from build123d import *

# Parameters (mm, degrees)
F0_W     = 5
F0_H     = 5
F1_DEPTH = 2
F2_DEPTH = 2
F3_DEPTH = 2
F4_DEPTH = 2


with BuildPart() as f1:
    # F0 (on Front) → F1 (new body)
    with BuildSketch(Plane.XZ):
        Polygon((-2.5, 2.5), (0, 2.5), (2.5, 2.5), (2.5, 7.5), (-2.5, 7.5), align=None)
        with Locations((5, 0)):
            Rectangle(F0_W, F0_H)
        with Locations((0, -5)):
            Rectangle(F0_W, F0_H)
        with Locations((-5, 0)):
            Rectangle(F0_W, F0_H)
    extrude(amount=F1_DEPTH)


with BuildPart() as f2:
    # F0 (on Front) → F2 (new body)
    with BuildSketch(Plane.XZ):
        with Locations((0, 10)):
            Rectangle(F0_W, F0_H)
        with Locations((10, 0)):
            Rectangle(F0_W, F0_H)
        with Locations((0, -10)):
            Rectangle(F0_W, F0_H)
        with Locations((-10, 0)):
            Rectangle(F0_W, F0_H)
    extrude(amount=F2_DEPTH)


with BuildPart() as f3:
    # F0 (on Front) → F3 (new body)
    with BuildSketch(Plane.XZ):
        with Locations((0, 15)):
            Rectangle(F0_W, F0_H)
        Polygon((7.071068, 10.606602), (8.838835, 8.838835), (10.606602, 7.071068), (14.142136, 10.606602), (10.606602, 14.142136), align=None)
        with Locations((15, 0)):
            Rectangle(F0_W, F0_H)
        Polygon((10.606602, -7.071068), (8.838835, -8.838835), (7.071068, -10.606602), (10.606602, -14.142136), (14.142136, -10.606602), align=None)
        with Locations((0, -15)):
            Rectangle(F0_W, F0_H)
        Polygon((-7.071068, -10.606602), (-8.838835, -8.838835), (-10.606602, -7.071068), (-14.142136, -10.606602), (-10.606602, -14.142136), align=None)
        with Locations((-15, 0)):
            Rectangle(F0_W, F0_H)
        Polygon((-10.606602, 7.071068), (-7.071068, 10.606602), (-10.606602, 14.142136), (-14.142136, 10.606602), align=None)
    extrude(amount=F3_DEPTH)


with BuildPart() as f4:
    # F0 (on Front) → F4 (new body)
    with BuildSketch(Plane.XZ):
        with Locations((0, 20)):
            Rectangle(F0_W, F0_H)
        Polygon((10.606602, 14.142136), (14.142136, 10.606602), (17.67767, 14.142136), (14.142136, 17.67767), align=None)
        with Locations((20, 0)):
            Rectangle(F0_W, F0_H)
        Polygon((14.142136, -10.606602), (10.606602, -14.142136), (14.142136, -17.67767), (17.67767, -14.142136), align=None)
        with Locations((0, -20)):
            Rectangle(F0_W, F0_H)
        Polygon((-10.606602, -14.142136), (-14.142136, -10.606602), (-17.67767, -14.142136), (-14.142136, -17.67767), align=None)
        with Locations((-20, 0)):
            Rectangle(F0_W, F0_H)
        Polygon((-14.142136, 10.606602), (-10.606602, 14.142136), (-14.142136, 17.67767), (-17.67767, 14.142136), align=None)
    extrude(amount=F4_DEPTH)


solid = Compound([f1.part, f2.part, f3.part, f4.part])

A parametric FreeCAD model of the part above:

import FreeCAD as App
import Part
import Sketcher
from FreeCAD import Vector
Q = App.Units.Quantity

doc = App.newDocument("Part")
body = doc.addObject("PartDesign::Body", "Body")
body.AllowCompound = True

# Sketch on XZ plane
sketch1 = body.newObject("Sketcher::SketchObject", "Sketch")
sketch1.AttachmentSupport = (doc.getObject("XZ_Plane"), [""])
sketch1.MapMode = "FlatFace"
sketch1.addGeometry([
    Part.LineSegment(Vector(-2, 2, 0), Vector(2, 2, 0)),  # 0
    Part.LineSegment(Vector(2, 2, 0), Vector(2, 8, 0)),  # 1
    Part.LineSegment(Vector(2, 8, 0), Vector(-2, 8, 0)),  # 2
    Part.LineSegment(Vector(-2, 8, 0), Vector(-2, 2, 0)),  # 3
    Part.LineSegment(Vector(2, 2, 0), Vector(2, -2, 0)),  # 4
    Part.LineSegment(Vector(2, -2, 0), Vector(8, -2, 0)),  # 5
    Part.LineSegment(Vector(8, -2, 0), Vector(8, 2, 0)),  # 6
    Part.LineSegment(Vector(8, 2, 0), Vector(2, 2, 0)),  # 7
    Part.LineSegment(Vector(-2, -2, 0), Vector(-2, -8, 0)),  # 8
    Part.LineSegment(Vector(-2, -8, 0), Vector(2, -8, 0)),  # 9
    Part.LineSegment(Vector(2, -8, 0), Vector(2, -2, 0)),  # 10
    Part.LineSegment(Vector(2, -2, 0), Vector(-2, -2, 0)),  # 11
    Part.LineSegment(Vector(-8, 2, 0), Vector(-8, -2, 0)),  # 12
    Part.LineSegment(Vector(-8, -2, 0), Vector(-2, -2, 0)),  # 13
    Part.LineSegment(Vector(-2, -2, 0), Vector(-2, 2, 0)),  # 14
    Part.LineSegment(Vector(-2, 2, 0), Vector(-8, 2, 0)),  # 15
], False)
sketch1.addConstraint([
    Sketcher.Constraint("Coincident", 0, 2, 1, 1),
    Sketcher.Constraint("Coincident", 1, 2, 2, 1),
    Sketcher.Constraint("Coincident", 2, 2, 3, 1),
    Sketcher.Constraint("Coincident", 3, 2, 0, 1),
    Sketcher.Constraint("Coincident", 4, 2, 5, 1),
    Sketcher.Constraint("Coincident", 5, 2, 6, 1),
    Sketcher.Constraint("Coincident", 6, 2, 7, 1),
    Sketcher.Constraint("Coincident", 7, 2, 4, 1),
    Sketcher.Constraint("Coincident", 8, 2, 9, 1),
    Sketcher.Constraint("Coincident", 9, 2, 10, 1),
    Sketcher.Constraint("Coincident", 10, 2, 11, 1),
    Sketcher.Constraint("Coincident", 11, 2, 8, 1),
    Sketcher.Constraint("Coincident", 12, 2, 13, 1),
    Sketcher.Constraint("Coincident", 13, 2, 14, 1),
    Sketcher.Constraint("Coincident", 14, 2, 15, 1),
    Sketcher.Constraint("Coincident", 15, 2, 12, 1),
    Sketcher.Constraint("Horizontal", 0),
    Sketcher.Constraint("Vertical", 1),
    Sketcher.Constraint("Horizontal", 2),
    Sketcher.Constraint("Vertical", 3),
    Sketcher.Constraint("Vertical", 4),
    Sketcher.Constraint("Horizontal", 5),
    Sketcher.Constraint("Vertical", 6),
    Sketcher.Constraint("Horizontal", 7),
    Sketcher.Constraint("Vertical", 8),
    Sketcher.Constraint("Horizontal", 9),
    Sketcher.Constraint("Vertical", 10),
    Sketcher.Constraint("Horizontal", 11),
    Sketcher.Constraint("Vertical", 12),
    Sketcher.Constraint("Horizontal", 13),
    Sketcher.Constraint("Vertical", 14),
    Sketcher.Constraint("Horizontal", 15),
    Sketcher.Constraint("Coincident", 7, 2, 0, 2),
    Sketcher.Constraint("Coincident", 10, 2, 4, 2),
    Sketcher.Constraint("Coincident", 13, 2, 11, 2),
    Sketcher.Constraint("Coincident", 14, 2, 3, 2),
    Sketcher.Constraint("Symmetric", 3, 2, 4, 2, -1, 1),
    Sketcher.Constraint("Equal", 2, 5),
    Sketcher.Constraint("Equal", 11, 13),
    Sketcher.Constraint("Equal", 15, 1),
    Sketcher.Constraint("Equal", 3, 4),
    Sketcher.Constraint("Equal", 6, 8),
    Sketcher.Constraint("DistanceX", 0, 1, 0, 2, Q("5 mm")),
])
pad1 = body.newObject("PartDesign::Pad", "Pad")
pad1.Profile = sketch1
pad1.Length = 2
body2 = doc.addObject("PartDesign::Body", "Body001")
body2.AllowCompound = True

# Sketch on XZ plane
sketch2 = body2.newObject("Sketcher::SketchObject", "Sketch001")
sketch2.AttachmentSupport = (doc.getObject("XZ_Plane001"), [""])
sketch2.MapMode = "FlatFace"
sketch2.addGeometry([
    Part.LineSegment(Vector(-2, 12, 0), Vector(-2, 8, 0)),  # 0
    Part.LineSegment(Vector(-2, 8, 0), Vector(2, 8, 0)),  # 1
    Part.LineSegment(Vector(2, 8, 0), Vector(2, 12, 0)),  # 2
    Part.LineSegment(Vector(2, 12, 0), Vector(-2, 12, 0)),  # 3
    Part.LineSegment(Vector(8, 2, 0), Vector(8, -2, 0)),  # 4
    Part.LineSegment(Vector(8, -2, 0), Vector(12, -2, 0)),  # 5
    Part.LineSegment(Vector(12, -2, 0), Vector(12, 2, 0)),  # 6
    Part.LineSegment(Vector(12, 2, 0), Vector(8, 2, 0)),  # 7
    Part.LineSegment(Vector(-2, -8, 0), Vector(-2, -12, 0)),  # 8
    Part.LineSegment(Vector(-2, -12, 0), Vector(2, -12, 0)),  # 9
    Part.LineSegment(Vector(2, -12, 0), Vector(2, -8, 0)),  # 10
    Part.LineSegment(Vector(2, -8, 0), Vector(-2, -8, 0)),  # 11
    Part.LineSegment(Vector(-12, 2, 0), Vector(-12, -2, 0)),  # 12
    Part.LineSegment(Vector(-12, -2, 0), Vector(-8, -2, 0)),  # 13
    Part.LineSegment(Vector(-8, -2, 0), Vector(-8, 2, 0)),  # 14
    Part.LineSegment(Vector(-8, 2, 0), Vector(-12, 2, 0)),  # 15
], False)
sketch2.addConstraint([
    Sketcher.Constraint("Coincident", 0, 2, 1, 1),
    Sketcher.Constraint("Coincident", 1, 2, 2, 1),
    Sketcher.Constraint("Coincident", 2, 2, 3, 1),
    Sketcher.Constraint("Coincident", 3, 2, 0, 1),
    Sketcher.Constraint("Coincident", 4, 2, 5, 1),
    Sketcher.Constraint("Coincident", 5, 2, 6, 1),
    Sketcher.Constraint("Coincident", 6, 2, 7, 1),
    Sketcher.Constraint("Coincident", 7, 2, 4, 1),
    Sketcher.Constraint("Coincident", 8, 2, 9, 1),
    Sketcher.Constraint("Coincident", 9, 2, 10, 1),
    Sketcher.Constraint("Coincident", 10, 2, 11, 1),
    Sketcher.Constraint("Coincident", 11, 2, 8, 1),
    Sketcher.Constraint("Coincident", 12, 2, 13, 1),
    Sketcher.Constraint("Coincident", 13, 2, 14, 1),
    Sketcher.Constraint("Coincident", 14, 2, 15, 1),
    Sketcher.Constraint("Coincident", 15, 2, 12, 1),
    Sketcher.Constraint("Vertical", 0),
    Sketcher.Constraint("Horizontal", 1),
    Sketcher.Constraint("Vertical", 2),
    Sketcher.Constraint("Horizontal", 3),
    Sketcher.Constraint("Vertical", 4),
    Sketcher.Constraint("Horizontal", 5),
    Sketcher.Constraint("Vertical", 6),
    Sketcher.Constraint("Horizontal", 7),
    Sketcher.Constraint("Vertical", 8),
    Sketcher.Constraint("Horizontal", 9),
    Sketcher.Constraint("Vertical", 10),
    Sketcher.Constraint("Horizontal", 11),
    Sketcher.Constraint("Vertical", 12),
    Sketcher.Constraint("Horizontal", 13),
    Sketcher.Constraint("Vertical", 14),
    Sketcher.Constraint("Horizontal", 15),
    Sketcher.Constraint("Symmetric", 2, 2, 8, 2, -1, 1),
    Sketcher.Constraint("Symmetric", 0, 2, 10, 2, -1, 1),
    Sketcher.Constraint("Symmetric", 6, 2, 12, 2, -1, 1),
    Sketcher.Constraint("Symmetric", 4, 2, 14, 2, -1, 1),
    Sketcher.Constraint("Horizontal", 5, 2, 12, 2),
    Sketcher.Constraint("Vertical", 3, 2, 8, 2),
    Sketcher.Constraint("Equal", 3, 5),
    Sketcher.Constraint("Equal", 15, 0),
    Sketcher.Constraint("Equal", 2, 4),
    Sketcher.Constraint("DistanceX", 1, 1, 1, 2, Q("5 mm")),
    Sketcher.Constraint("DistanceX", 1, 2, 4, 2, Q("5 mm")),
    Sketcher.Constraint("DistanceY", 4, 2, 1, 2, Q("10 mm")),
])
pad2 = body2.newObject("PartDesign::Pad", "Pad001")
pad2.Profile = sketch2
pad2.Length = 2
body3 = doc.addObject("PartDesign::Body", "Body002")
body3.AllowCompound = True

# Sketch on XZ plane
sketch3 = body3.newObject("Sketcher::SketchObject", "Sketch002")
sketch3.AttachmentSupport = (doc.getObject("XZ_Plane002"), [""])
sketch3.MapMode = "FlatFace"
sketch3.addGeometry([
    Part.LineSegment(Vector(-2, 18, 0), Vector(-2, 12, 0)),  # 0
    Part.LineSegment(Vector(-2, 12, 0), Vector(2, 12, 0)),  # 1
    Part.LineSegment(Vector(2, 12, 0), Vector(2, 18, 0)),  # 2
    Part.LineSegment(Vector(2, 18, 0), Vector(-2, 18, 0)),  # 3
    Part.LineSegment(Vector(7, 11, 0), Vector(11, 7, 0)),  # 4
    Part.LineSegment(Vector(11, 7, 0), Vector(14, 11, 0)),  # 5
    Part.LineSegment(Vector(14, 11, 0), Vector(11, 14, 0)),  # 6
    Part.LineSegment(Vector(11, 14, 0), Vector(7, 11, 0)),  # 7
    Part.LineSegment(Vector(12, 2, 0), Vector(12, -2, 0)),  # 8
    Part.LineSegment(Vector(12, -2, 0), Vector(18, -2, 0)),  # 9
    Part.LineSegment(Vector(18, -2, 0), Vector(18, 2, 0)),  # 10
    Part.LineSegment(Vector(18, 2, 0), Vector(12, 2, 0)),  # 11
    Part.LineSegment(Vector(11, -7, 0), Vector(7, -11, 0)),  # 12
    Part.LineSegment(Vector(7, -11, 0), Vector(11, -14, 0)),  # 13
    Part.LineSegment(Vector(11, -14, 0), Vector(14, -11, 0)),  # 14
    Part.LineSegment(Vector(14, -11, 0), Vector(11, -7, 0)),  # 15
    Part.LineSegment(Vector(-2, -12, 0), Vector(-2, -18, 0)),  # 16
    Part.LineSegment(Vector(-2, -18, 0), Vector(2, -18, 0)),  # 17
    Part.LineSegment(Vector(2, -18, 0), Vector(2, -12, 0)),  # 18
    Part.LineSegment(Vector(2, -12, 0), Vector(-2, -12, 0)),  # 19
    Part.LineSegment(Vector(-7, -11, 0), Vector(-11, -7, 0)),  # 20
    Part.LineSegment(Vector(-11, -7, 0), Vector(-14, -11, 0)),  # 21
    Part.LineSegment(Vector(-14, -11, 0), Vector(-11, -14, 0)),  # 22
    Part.LineSegment(Vector(-11, -14, 0), Vector(-7, -11, 0)),  # 23
    Part.LineSegment(Vector(-18, 2, 0), Vector(-18, -2, 0)),  # 24
    Part.LineSegment(Vector(-18, -2, 0), Vector(-12, -2, 0)),  # 25
    Part.LineSegment(Vector(-12, -2, 0), Vector(-12, 2, 0)),  # 26
    Part.LineSegment(Vector(-12, 2, 0), Vector(-18, 2, 0)),  # 27
    Part.LineSegment(Vector(-11, 7, 0), Vector(-7, 11, 0)),  # 28
    Part.LineSegment(Vector(-7, 11, 0), Vector(-11, 14, 0)),  # 29
    Part.LineSegment(Vector(-11, 14, 0), Vector(-14, 11, 0)),  # 30
    Part.LineSegment(Vector(-14, 11, 0), Vector(-11, 7, 0)),  # 31
], False)
sketch3.addConstraint([
    Sketcher.Constraint("Coincident", 0, 2, 1, 1),
    Sketcher.Constraint("Coincident", 1, 2, 2, 1),
    Sketcher.Constraint("Coincident", 2, 2, 3, 1),
    Sketcher.Constraint("Coincident", 3, 2, 0, 1),
    Sketcher.Constraint("Coincident", 4, 2, 5, 1),
    Sketcher.Constraint("Coincident", 5, 2, 6, 1),
    Sketcher.Constraint("Coincident", 6, 2, 7, 1),
    Sketcher.Constraint("Coincident", 7, 2, 4, 1),
    Sketcher.Constraint("Coincident", 8, 2, 9, 1),
    Sketcher.Constraint("Coincident", 9, 2, 10, 1),
    Sketcher.Constraint("Coincident", 10, 2, 11, 1),
    Sketcher.Constraint("Coincident", 11, 2, 8, 1),
    Sketcher.Constraint("Coincident", 12, 2, 13, 1),
    Sketcher.Constraint("Coincident", 13, 2, 14, 1),
    Sketcher.Constraint("Coincident", 14, 2, 15, 1),
    Sketcher.Constraint("Coincident", 15, 2, 12, 1),
    Sketcher.Constraint("Coincident", 16, 2, 17, 1),
    Sketcher.Constraint("Coincident", 17, 2, 18, 1),
    Sketcher.Constraint("Coincident", 18, 2, 19, 1),
    Sketcher.Constraint("Coincident", 19, 2, 16, 1),
    Sketcher.Constraint("Coincident", 20, 2, 21, 1),
    Sketcher.Constraint("Coincident", 21, 2, 22, 1),
    Sketcher.Constraint("Coincident", 22, 2, 23, 1),
    Sketcher.Constraint("Coincident", 23, 2, 20, 1),
    Sketcher.Constraint("Coincident", 24, 2, 25, 1),
    Sketcher.Constraint("Coincident", 25, 2, 26, 1),
    Sketcher.Constraint("Coincident", 26, 2, 27, 1),
    Sketcher.Constraint("Coincident", 27, 2, 24, 1),
    Sketcher.Constraint("Coincident", 28, 2, 29, 1),
    Sketcher.Constraint("Coincident", 29, 2, 30, 1),
    Sketcher.Constraint("Coincident", 30, 2, 31, 1),
    Sketcher.Constraint("Coincident", 31, 2, 28, 1),
    Sketcher.Constraint("Vertical", 0),
    Sketcher.Constraint("Horizontal", 1),
    Sketcher.Constraint("Vertical", 2),
    Sketcher.Constraint("Horizontal", 3),
    Sketcher.Constraint("Vertical", 8),
    Sketcher.Constraint("Horizontal", 9),
    Sketcher.Constraint("Vertical", 10),
    Sketcher.Constraint("Horizontal", 11),
    Sketcher.Constraint("Vertical", 16),
    Sketcher.Constraint("Horizontal", 17),
    Sketcher.Constraint("Vertical", 18),
    Sketcher.Constraint("Horizontal", 19),
    Sketcher.Constraint("Vertical", 24),
    Sketcher.Constraint("Horizontal", 25),
    Sketcher.Constraint("Vertical", 26),
    Sketcher.Constraint("Horizontal", 27),
    Sketcher.Constraint("Symmetric", 2, 2, 16, 2, -1, 1),
    Sketcher.Constraint("Symmetric", 0, 2, 18, 2, -1, 1),
    Sketcher.Constraint("Symmetric", 4, 2, 20, 2, -1, 1),
    Sketcher.Constraint("Symmetric", 5, 2, 21, 2, -1, 1),
    Sketcher.Constraint("Symmetric", 6, 2, 22, 2, -1, 1),
    Sketcher.Constraint("Symmetric", 7, 2, 23, 2, -1, 1),
    Sketcher.Constraint("Symmetric", 10, 2, 24, 2, -1, 1),
    Sketcher.Constraint("Symmetric", 8, 2, 26, 2, -1, 1),
    Sketcher.Constraint("Symmetric", 12, 2, 28, 2, -1, 1),
    Sketcher.Constraint("Symmetric", 13, 2, 29, 2, -1, 1),
    Sketcher.Constraint("Symmetric", 14, 2, 30, 2, -1, 1),
    Sketcher.Constraint("Symmetric", 15, 2, 31, 2, -1, 1),
    Sketcher.Constraint("Symmetric", 15, 2, 20, 2, -2),
    Sketcher.Constraint("Symmetric", 14, 2, 21, 2, -2),
    Sketcher.Constraint("Symmetric", 13, 2, 22, 2, -2),
    Sketcher.Constraint("Symmetric", 12, 2, 23, 2, -2),
    Sketcher.Constraint("Perpendicular", 4, 5),
    Sketcher.Constraint("Perpendicular", 5, 6),
    Sketcher.Constraint("Perpendicular", 6, 7),
    Sketcher.Constraint("Parallel", 7, 12),
    Sketcher.Constraint("Horizontal", 5, 2, 7, 2),
    Sketcher.Constraint("Horizontal", 9, 2, 24, 2),
    Sketcher.Constraint("Vertical", 3, 2, 16, 2),
    Sketcher.Constraint("Equal", 3, 9),
    Sketcher.Constraint("Equal", 27, 0),
    Sketcher.Constraint("Equal", 2, 8),
    Sketcher.Constraint("DistanceX", 1, 1, 1, 2, Q("5 mm")),
    Sketcher.Constraint("Distance", 4, Q("5 mm")),
    Sketcher.Constraint("DistanceX", 1, 2, 8, 2, Q("10 mm")),
    Sketcher.Constraint("DistanceY", 8, 2, 1, 2, Q("15 mm")),
    Sketcher.Constraint("DistanceY", -1, 1, 4, 2, Q("7.071068 mm")),
    Sketcher.Constraint("DistanceX", -1, 1, 7, 2, Q("7.071068 mm")),
])
pad3 = body3.newObject("PartDesign::Pad", "Pad002")
pad3.Profile = sketch3
pad3.Length = 2
body4 = doc.addObject("PartDesign::Body", "Body003")
body4.AllowCompound = True

# Sketch on XZ plane
sketch4 = body4.newObject("Sketcher::SketchObject", "Sketch003")
sketch4.AttachmentSupport = (doc.getObject("XZ_Plane003"), [""])
sketch4.MapMode = "FlatFace"
sketch4.addGeometry([
    Part.LineSegment(Vector(-2, 22, 0), Vector(-2, 18, 0)),  # 0
    Part.LineSegment(Vector(-2, 18, 0), Vector(2, 18, 0)),  # 1
    Part.LineSegment(Vector(2, 18, 0), Vector(2, 22, 0)),  # 2
    Part.LineSegment(Vector(2, 22, 0), Vector(-2, 22, 0)),  # 3
    Part.LineSegment(Vector(11, 14, 0), Vector(14, 11, 0)),  # 4
    Part.LineSegment(Vector(14, 11, 0), Vector(18, 14, 0)),  # 5
    Part.LineSegment(Vector(18, 14, 0), Vector(14, 18, 0)),  # 6
    Part.LineSegment(Vector(14, 18, 0), Vector(11, 14, 0)),  # 7
    Part.LineSegment(Vector(18, 2, 0), Vector(18, -2, 0)),  # 8
    Part.LineSegment(Vector(18, -2, 0), Vector(22, -2, 0)),  # 9
    Part.LineSegment(Vector(22, -2, 0), Vector(22, 2, 0)),  # 10
    Part.LineSegment(Vector(22, 2, 0), Vector(18, 2, 0)),  # 11
    Part.LineSegment(Vector(14, -11, 0), Vector(11, -14, 0)),  # 12
    Part.LineSegment(Vector(11, -14, 0), Vector(14, -18, 0)),  # 13
    Part.LineSegment(Vector(14, -18, 0), Vector(18, -14, 0)),  # 14
    Part.LineSegment(Vector(18, -14, 0), Vector(14, -11, 0)),  # 15
    Part.LineSegment(Vector(-2, -18, 0), Vector(-2, -22, 0)),  # 16
    Part.LineSegment(Vector(-2, -22, 0), Vector(2, -22, 0)),  # 17
    Part.LineSegment(Vector(2, -22, 0), Vector(2, -18, 0)),  # 18
    Part.LineSegment(Vector(2, -18, 0), Vector(-2, -18, 0)),  # 19
    Part.LineSegment(Vector(-11, -14, 0), Vector(-14, -11, 0)),  # 20
    Part.LineSegment(Vector(-14, -11, 0), Vector(-18, -14, 0)),  # 21
    Part.LineSegment(Vector(-18, -14, 0), Vector(-14, -18, 0)),  # 22
    Part.LineSegment(Vector(-14, -18, 0), Vector(-11, -14, 0)),  # 23
    Part.LineSegment(Vector(-22, 2, 0), Vector(-22, -2, 0)),  # 24
    Part.LineSegment(Vector(-22, -2, 0), Vector(-18, -2, 0)),  # 25
    Part.LineSegment(Vector(-18, -2, 0), Vector(-18, 2, 0)),  # 26
    Part.LineSegment(Vector(-18, 2, 0), Vector(-22, 2, 0)),  # 27
    Part.LineSegment(Vector(-14, 11, 0), Vector(-11, 14, 0)),  # 28
    Part.LineSegment(Vector(-11, 14, 0), Vector(-14, 18, 0)),  # 29
    Part.LineSegment(Vector(-14, 18, 0), Vector(-18, 14, 0)),  # 30
    Part.LineSegment(Vector(-18, 14, 0), Vector(-14, 11, 0)),  # 31
], False)
sketch4.addConstraint([
    Sketcher.Constraint("Coincident", 0, 2, 1, 1),
    Sketcher.Constraint("Coincident", 1, 2, 2, 1),
    Sketcher.Constraint("Coincident", 2, 2, 3, 1),
    Sketcher.Constraint("Coincident", 3, 2, 0, 1),
    Sketcher.Constraint("Coincident", 4, 2, 5, 1),
    Sketcher.Constraint("Coincident", 5, 2, 6, 1),
    Sketcher.Constraint("Coincident", 6, 2, 7, 1),
    Sketcher.Constraint("Coincident", 7, 2, 4, 1),
    Sketcher.Constraint("Coincident", 8, 2, 9, 1),
    Sketcher.Constraint("Coincident", 9, 2, 10, 1),
    Sketcher.Constraint("Coincident", 10, 2, 11, 1),
    Sketcher.Constraint("Coincident", 11, 2, 8, 1),
    Sketcher.Constraint("Coincident", 12, 2, 13, 1),
    Sketcher.Constraint("Coincident", 13, 2, 14, 1),
    Sketcher.Constraint("Coincident", 14, 2, 15, 1),
    Sketcher.Constraint("Coincident", 15, 2, 12, 1),
    Sketcher.Constraint("Coincident", 16, 2, 17, 1),
    Sketcher.Constraint("Coincident", 17, 2, 18, 1),
    Sketcher.Constraint("Coincident", 18, 2, 19, 1),
    Sketcher.Constraint("Coincident", 19, 2, 16, 1),
    Sketcher.Constraint("Coincident", 20, 2, 21, 1),
    Sketcher.Constraint("Coincident", 21, 2, 22, 1),
    Sketcher.Constraint("Coincident", 22, 2, 23, 1),
    Sketcher.Constraint("Coincident", 23, 2, 20, 1),
    Sketcher.Constraint("Coincident", 24, 2, 25, 1),
    Sketcher.Constraint("Coincident", 25, 2, 26, 1),
    Sketcher.Constraint("Coincident", 26, 2, 27, 1),
    Sketcher.Constraint("Coincident", 27, 2, 24, 1),
    Sketcher.Constraint("Coincident", 28, 2, 29, 1),
    Sketcher.Constraint("Coincident", 29, 2, 30, 1),
    Sketcher.Constraint("Coincident", 30, 2, 31, 1),
    Sketcher.Constraint("Coincident", 31, 2, 28, 1),
    Sketcher.Constraint("Vertical", 0),
    Sketcher.Constraint("Horizontal", 1),
    Sketcher.Constraint("Vertical", 2),
    Sketcher.Constraint("Horizontal", 3),
    Sketcher.Constraint("Vertical", 8),
    Sketcher.Constraint("Horizontal", 9),
    Sketcher.Constraint("Vertical", 10),
    Sketcher.Constraint("Horizontal", 11),
    Sketcher.Constraint("Vertical", 16),
    Sketcher.Constraint("Horizontal", 17),
    Sketcher.Constraint("Vertical", 18),
    Sketcher.Constraint("Horizontal", 19),
    Sketcher.Constraint("Vertical", 24),
    Sketcher.Constraint("Horizontal", 25),
    Sketcher.Constraint("Vertical", 26),
    Sketcher.Constraint("Horizontal", 27),
    Sketcher.Constraint("Symmetric", 2, 2, 16, 2, -1, 1),
    Sketcher.Constraint("Symmetric", 0, 2, 18, 2, -1, 1),
    Sketcher.Constraint("Symmetric", 4, 2, 20, 2, -1, 1),
    Sketcher.Constraint("Symmetric", 5, 2, 21, 2, -1, 1),
    Sketcher.Constraint("Symmetric", 6, 2, 22, 2, -1, 1),
    Sketcher.Constraint("Symmetric", 7, 2, 23, 2, -1, 1),
    Sketcher.Constraint("Symmetric", 10, 2, 24, 2, -1, 1),
    Sketcher.Constraint("Symmetric", 8, 2, 26, 2, -1, 1),
    Sketcher.Constraint("Symmetric", 12, 2, 28, 2, -1, 1),
    Sketcher.Constraint("Symmetric", 13, 2, 29, 2, -1, 1),
    Sketcher.Constraint("Symmetric", 14, 2, 30, 2, -1, 1),
    Sketcher.Constraint("Symmetric", 15, 2, 31, 2, -1, 1),
    Sketcher.Constraint("Symmetric", 15, 2, 20, 2, -2),
    Sketcher.Constraint("Symmetric", 14, 2, 21, 2, -2),
    Sketcher.Constraint("Symmetric", 13, 2, 22, 2, -2),
    Sketcher.Constraint("Symmetric", 12, 2, 23, 2, -2),
    Sketcher.Constraint("Perpendicular", 4, 5),
    Sketcher.Constraint("Perpendicular", 5, 6),
    Sketcher.Constraint("Perpendicular", 6, 7),
    Sketcher.Constraint("Parallel", 7, 12),
    Sketcher.Constraint("Horizontal", 5, 2, 7, 2),
    Sketcher.Constraint("Horizontal", 9, 2, 24, 2),
    Sketcher.Constraint("Vertical", 3, 2, 16, 2),
    Sketcher.Constraint("Equal", 3, 9),
    Sketcher.Constraint("Equal", 27, 0),
    Sketcher.Constraint("Equal", 2, 8),
    Sketcher.Constraint("DistanceX", 1, 1, 1, 2, Q("5 mm")),
    Sketcher.Constraint("Distance", 4, Q("5 mm")),
    Sketcher.Constraint("DistanceX", 1, 2, 8, 2, Q("15 mm")),
    Sketcher.Constraint("DistanceY", 8, 2, 1, 2, Q("20 mm")),
    Sketcher.Constraint("DistanceX", -1, 1, 5, 2, Q("17.67767 mm")),
    Sketcher.Constraint("DistanceY", -1, 1, 6, 2, Q("17.67767 mm")),
])
pad4 = body4.newObject("PartDesign::Pad", "Pad003")
pad4.Profile = sketch4
pad4.Length = 2

doc.recompute()
